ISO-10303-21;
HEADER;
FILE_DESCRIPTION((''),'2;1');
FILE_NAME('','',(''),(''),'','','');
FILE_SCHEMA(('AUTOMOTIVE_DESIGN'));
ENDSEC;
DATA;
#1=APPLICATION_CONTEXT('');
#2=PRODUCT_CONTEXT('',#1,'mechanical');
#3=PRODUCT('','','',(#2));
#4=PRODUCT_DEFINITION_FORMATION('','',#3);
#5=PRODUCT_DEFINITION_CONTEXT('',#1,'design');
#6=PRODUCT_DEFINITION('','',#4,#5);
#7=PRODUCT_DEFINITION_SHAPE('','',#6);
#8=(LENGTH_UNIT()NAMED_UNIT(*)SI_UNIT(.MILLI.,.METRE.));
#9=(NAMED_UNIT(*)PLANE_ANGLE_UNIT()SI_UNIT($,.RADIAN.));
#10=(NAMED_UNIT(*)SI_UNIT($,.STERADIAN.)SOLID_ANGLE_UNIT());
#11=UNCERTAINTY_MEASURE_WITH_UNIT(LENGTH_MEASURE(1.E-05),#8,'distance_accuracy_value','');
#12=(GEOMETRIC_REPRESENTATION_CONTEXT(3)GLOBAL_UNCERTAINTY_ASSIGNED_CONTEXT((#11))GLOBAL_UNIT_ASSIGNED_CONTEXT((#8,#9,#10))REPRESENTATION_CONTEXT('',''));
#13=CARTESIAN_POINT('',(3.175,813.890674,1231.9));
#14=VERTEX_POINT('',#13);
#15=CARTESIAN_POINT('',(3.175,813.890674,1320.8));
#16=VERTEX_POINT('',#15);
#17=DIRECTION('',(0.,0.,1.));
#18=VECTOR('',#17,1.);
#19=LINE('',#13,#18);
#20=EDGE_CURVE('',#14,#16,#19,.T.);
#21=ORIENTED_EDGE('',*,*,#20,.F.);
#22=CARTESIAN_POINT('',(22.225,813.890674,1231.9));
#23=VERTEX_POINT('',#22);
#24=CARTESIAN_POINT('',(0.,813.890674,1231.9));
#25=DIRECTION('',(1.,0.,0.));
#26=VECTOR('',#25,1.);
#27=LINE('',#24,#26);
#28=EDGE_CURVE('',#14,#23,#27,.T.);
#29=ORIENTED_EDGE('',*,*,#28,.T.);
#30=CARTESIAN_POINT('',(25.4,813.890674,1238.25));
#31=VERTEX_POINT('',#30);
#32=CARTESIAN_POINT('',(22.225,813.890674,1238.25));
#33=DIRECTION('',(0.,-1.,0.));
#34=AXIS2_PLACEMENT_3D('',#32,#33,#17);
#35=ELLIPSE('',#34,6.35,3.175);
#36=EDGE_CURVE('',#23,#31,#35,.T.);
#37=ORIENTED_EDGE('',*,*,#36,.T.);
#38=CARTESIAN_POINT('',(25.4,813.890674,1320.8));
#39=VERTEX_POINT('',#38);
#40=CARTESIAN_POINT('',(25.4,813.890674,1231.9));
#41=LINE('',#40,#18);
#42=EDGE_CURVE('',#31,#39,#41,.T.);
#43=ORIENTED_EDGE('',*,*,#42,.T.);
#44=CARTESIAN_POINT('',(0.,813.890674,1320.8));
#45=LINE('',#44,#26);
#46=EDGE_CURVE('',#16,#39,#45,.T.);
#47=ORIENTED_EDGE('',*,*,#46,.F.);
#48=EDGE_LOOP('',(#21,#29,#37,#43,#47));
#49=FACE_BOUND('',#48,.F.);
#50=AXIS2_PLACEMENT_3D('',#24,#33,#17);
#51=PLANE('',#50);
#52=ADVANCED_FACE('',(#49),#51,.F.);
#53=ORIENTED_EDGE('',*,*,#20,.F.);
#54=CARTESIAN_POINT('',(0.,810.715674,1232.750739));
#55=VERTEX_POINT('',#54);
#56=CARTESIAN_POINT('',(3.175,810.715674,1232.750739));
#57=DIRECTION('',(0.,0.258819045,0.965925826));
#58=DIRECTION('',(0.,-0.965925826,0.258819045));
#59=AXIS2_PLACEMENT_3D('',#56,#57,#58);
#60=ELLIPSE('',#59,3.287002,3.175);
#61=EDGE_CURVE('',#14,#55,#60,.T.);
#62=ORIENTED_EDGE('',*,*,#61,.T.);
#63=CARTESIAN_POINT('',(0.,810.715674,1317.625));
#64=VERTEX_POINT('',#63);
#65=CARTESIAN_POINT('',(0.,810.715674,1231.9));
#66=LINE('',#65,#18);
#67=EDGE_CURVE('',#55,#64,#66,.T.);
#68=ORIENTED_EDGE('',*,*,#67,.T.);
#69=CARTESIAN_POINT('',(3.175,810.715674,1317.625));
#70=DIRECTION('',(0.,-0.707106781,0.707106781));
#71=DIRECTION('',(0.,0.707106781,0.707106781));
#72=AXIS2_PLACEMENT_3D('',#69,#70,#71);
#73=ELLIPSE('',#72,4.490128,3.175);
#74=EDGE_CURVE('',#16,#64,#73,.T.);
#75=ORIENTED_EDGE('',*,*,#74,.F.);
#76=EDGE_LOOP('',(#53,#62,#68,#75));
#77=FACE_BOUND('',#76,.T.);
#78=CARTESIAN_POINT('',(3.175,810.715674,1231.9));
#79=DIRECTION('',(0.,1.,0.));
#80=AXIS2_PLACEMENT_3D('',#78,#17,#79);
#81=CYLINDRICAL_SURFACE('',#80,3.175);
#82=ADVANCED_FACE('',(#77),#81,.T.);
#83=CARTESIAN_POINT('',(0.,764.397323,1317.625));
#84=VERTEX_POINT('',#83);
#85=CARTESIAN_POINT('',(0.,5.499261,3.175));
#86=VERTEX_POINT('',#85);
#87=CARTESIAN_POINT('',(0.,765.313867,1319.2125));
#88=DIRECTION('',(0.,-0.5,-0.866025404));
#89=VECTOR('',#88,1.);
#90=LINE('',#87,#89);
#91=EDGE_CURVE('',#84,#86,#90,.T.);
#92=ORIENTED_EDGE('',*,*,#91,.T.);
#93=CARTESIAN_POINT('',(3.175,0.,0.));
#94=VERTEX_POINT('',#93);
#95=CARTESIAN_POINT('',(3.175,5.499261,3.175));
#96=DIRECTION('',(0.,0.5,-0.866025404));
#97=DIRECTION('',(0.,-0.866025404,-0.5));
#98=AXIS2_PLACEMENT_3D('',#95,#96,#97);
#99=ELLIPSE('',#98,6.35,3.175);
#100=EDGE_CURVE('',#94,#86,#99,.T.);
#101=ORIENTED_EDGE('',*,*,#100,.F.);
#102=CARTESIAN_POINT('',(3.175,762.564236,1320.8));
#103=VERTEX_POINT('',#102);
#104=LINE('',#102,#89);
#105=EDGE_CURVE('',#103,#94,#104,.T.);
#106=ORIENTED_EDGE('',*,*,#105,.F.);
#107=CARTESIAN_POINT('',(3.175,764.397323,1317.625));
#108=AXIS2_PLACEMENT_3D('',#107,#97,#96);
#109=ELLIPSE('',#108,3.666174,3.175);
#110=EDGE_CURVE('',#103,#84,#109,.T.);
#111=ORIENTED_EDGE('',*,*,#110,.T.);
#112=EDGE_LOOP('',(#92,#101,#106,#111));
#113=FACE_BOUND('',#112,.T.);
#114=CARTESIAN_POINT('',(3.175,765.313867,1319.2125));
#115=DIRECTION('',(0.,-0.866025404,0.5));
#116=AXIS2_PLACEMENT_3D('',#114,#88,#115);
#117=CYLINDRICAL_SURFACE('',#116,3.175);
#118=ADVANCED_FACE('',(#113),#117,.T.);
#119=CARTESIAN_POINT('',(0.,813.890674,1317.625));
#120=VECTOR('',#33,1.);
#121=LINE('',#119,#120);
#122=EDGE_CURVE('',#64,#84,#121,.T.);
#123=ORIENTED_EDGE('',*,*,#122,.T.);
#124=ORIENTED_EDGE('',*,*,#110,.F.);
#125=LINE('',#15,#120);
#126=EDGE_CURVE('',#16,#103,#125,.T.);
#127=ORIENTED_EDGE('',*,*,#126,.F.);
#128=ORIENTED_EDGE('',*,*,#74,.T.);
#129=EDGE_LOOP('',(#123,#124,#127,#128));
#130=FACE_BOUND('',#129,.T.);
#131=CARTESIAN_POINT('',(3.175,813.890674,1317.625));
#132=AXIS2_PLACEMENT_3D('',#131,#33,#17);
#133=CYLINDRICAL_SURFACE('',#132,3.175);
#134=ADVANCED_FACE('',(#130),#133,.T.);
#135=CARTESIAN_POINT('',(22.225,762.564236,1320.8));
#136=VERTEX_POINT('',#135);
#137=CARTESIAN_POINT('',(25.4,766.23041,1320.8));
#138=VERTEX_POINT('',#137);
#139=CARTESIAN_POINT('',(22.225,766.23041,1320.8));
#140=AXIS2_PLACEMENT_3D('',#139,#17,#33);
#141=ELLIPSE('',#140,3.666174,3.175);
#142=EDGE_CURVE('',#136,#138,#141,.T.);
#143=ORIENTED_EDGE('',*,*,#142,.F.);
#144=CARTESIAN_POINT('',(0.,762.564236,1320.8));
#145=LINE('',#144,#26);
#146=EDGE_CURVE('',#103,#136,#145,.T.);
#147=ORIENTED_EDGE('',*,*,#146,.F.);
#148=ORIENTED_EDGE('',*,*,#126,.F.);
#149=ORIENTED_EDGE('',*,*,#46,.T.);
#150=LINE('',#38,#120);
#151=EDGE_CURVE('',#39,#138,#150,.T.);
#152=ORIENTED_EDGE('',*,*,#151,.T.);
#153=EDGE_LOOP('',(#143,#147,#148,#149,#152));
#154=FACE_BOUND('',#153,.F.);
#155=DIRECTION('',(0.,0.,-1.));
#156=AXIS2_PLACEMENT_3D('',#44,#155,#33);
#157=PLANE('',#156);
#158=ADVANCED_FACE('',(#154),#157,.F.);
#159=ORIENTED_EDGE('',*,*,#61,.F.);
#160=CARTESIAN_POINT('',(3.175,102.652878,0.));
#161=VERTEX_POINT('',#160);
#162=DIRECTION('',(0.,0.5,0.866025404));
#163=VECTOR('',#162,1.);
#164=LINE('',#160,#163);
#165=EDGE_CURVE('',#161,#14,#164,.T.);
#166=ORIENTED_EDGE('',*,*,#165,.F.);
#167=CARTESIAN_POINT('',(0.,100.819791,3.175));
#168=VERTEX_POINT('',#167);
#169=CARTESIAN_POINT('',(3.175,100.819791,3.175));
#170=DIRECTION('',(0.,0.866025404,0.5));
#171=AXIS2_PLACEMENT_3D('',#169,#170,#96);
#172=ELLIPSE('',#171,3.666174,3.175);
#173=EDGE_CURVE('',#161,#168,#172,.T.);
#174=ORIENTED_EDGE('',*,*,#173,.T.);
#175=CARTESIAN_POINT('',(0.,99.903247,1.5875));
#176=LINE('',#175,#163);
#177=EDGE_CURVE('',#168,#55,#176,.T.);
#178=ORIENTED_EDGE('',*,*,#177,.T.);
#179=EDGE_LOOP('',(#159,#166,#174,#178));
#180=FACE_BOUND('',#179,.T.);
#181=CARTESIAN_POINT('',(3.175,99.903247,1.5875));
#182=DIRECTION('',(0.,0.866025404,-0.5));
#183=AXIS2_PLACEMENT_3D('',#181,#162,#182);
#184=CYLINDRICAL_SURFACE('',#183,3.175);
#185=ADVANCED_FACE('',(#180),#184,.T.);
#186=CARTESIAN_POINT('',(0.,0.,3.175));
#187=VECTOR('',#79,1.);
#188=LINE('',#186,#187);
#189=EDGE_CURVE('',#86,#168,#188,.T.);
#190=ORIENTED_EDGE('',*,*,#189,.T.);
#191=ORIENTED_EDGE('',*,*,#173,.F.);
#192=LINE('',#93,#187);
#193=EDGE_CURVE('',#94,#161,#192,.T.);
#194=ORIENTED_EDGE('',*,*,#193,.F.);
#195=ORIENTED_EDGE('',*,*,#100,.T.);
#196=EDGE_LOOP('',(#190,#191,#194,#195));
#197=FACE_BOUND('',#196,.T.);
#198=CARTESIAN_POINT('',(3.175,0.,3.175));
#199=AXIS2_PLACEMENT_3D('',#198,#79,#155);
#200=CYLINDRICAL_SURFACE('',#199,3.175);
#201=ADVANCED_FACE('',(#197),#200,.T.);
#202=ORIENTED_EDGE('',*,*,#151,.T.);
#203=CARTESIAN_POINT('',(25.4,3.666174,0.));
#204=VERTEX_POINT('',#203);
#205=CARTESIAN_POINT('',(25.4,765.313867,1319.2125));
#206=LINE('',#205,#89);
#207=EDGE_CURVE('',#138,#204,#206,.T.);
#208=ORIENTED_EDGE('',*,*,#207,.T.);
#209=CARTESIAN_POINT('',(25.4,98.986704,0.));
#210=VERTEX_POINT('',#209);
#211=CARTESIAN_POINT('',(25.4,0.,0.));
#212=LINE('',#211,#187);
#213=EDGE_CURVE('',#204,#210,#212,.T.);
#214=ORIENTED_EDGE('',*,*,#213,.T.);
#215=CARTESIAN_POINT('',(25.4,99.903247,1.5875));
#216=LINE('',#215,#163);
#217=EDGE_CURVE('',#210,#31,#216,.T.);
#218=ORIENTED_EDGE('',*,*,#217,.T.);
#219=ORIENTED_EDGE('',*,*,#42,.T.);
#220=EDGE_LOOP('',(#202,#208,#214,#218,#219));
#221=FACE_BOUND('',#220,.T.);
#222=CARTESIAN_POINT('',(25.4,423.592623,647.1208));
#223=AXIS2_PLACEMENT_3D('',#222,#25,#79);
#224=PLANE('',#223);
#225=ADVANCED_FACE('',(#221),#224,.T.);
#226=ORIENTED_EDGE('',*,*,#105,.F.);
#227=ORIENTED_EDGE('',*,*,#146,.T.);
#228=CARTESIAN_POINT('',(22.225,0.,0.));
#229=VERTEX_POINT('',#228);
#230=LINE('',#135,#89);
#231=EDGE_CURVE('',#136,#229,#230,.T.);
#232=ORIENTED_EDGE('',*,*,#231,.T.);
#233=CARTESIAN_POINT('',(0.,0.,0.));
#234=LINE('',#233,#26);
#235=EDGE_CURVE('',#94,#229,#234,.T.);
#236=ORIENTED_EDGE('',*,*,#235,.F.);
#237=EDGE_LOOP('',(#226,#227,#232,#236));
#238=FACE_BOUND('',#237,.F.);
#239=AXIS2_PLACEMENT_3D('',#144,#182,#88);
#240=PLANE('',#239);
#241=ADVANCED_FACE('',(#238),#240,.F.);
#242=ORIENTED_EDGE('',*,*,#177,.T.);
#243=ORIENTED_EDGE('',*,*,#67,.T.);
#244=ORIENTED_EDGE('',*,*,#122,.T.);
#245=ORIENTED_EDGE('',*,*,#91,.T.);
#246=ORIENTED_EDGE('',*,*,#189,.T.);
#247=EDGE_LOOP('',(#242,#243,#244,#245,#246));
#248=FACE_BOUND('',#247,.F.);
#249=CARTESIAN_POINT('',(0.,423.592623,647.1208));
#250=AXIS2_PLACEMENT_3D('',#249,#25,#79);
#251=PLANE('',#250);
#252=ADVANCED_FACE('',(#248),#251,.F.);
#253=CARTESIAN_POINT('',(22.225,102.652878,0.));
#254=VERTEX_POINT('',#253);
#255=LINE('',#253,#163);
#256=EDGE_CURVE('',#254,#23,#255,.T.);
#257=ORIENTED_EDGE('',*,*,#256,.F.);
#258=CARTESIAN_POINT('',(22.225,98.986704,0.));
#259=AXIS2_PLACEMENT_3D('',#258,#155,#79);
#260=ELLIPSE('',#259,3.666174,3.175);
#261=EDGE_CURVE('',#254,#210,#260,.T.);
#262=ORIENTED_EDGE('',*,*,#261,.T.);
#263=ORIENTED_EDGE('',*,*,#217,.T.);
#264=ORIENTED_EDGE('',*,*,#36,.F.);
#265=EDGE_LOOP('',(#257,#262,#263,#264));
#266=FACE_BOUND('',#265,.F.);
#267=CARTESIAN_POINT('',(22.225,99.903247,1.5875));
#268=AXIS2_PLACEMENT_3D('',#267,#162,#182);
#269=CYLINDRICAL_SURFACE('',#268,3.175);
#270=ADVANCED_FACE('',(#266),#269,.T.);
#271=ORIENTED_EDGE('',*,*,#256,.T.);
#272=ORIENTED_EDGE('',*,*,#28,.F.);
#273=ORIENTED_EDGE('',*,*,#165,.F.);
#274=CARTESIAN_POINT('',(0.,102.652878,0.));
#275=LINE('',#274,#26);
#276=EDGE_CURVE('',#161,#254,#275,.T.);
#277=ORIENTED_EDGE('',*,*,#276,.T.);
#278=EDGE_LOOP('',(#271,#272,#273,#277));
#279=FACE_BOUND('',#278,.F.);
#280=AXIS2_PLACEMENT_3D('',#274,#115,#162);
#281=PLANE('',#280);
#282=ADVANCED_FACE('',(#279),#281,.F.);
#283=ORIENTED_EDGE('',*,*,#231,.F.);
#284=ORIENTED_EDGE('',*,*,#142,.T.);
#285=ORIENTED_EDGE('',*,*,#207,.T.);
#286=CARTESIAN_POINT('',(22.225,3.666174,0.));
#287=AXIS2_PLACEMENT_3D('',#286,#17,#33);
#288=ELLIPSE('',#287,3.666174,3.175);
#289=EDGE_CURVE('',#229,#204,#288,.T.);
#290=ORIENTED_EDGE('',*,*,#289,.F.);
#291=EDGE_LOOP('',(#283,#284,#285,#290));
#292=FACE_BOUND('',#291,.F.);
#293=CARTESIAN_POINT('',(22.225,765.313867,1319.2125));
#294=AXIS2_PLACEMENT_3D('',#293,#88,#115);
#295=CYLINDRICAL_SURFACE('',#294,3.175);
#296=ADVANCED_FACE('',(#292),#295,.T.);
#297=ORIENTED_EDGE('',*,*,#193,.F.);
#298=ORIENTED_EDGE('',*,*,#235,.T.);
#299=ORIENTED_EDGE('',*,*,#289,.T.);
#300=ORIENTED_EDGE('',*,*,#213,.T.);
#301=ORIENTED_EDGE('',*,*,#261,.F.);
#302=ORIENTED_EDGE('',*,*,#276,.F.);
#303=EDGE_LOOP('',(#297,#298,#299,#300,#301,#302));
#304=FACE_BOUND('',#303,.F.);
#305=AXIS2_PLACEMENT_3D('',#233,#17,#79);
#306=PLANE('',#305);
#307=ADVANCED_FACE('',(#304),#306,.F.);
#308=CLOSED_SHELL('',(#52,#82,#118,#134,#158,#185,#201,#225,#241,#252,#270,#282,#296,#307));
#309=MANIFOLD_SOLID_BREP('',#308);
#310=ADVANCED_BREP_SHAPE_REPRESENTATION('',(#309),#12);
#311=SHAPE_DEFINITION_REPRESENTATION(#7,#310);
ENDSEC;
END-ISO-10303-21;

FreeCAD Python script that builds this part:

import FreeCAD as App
import Part
import Sketcher
Q = App.Units.Quantity


def edges_at(feature, points):
    """Names of the edges that pass closest to the given points."""
    edges = feature.Shape.Edges
    near = lambda p: min(range(len(edges)), key=lambda i: edges[i].distToShape(Part.Vertex(*p))[0])
    return sorted({f"Edge{near(p) + 1}" for p in points})

doc = App.newDocument("Part")
body = doc.addObject("PartDesign::Body", "Body")

# Sketch on YZ plane
sketch1 = doc.addObject("Sketcher::SketchObject", "Sketch")
body.addObject(sketch1)
sketch1.AttachmentSupport = (doc.YZ_Plane, [""])
sketch1.MapMode = "FlatFace"
sketch1.addGeometry([
    Part.LineSegment(App.Vector(762.564236, 1320.8, 0), App.Vector(0, 0, 0)),  # 0
    Part.LineSegment(App.Vector(0, 0, 0), App.Vector(102.652878, 0, 0)),  # 1
    Part.LineSegment(App.Vector(102.652878, 0, 0), App.Vector(813.890674, 1231.9, 0)),  # 2
    Part.LineSegment(App.Vector(813.890674, 1231.9, 0), App.Vector(813.890674, 1320.8, 0)),  # 3
    Part.LineSegment(App.Vector(813.890674, 1320.8, 0), App.Vector(762.564236, 1320.8, 0)),  # 4
], False)
sketch1.addConstraint([
    Sketcher.Constraint("Coincident", 0, 2, 1, 1),
    Sketcher.Constraint("Coincident", 1, 2, 2, 1),
    Sketcher.Constraint("Coincident", 2, 2, 3, 1),
    Sketcher.Constraint("Coincident", 3, 2, 4, 1),
    Sketcher.Constraint("Coincident", 4, 2, 0, 1),
    Sketcher.Constraint("Horizontal", 1),
    Sketcher.Constraint("Vertical", 3),
    Sketcher.Constraint("Horizontal", 4),
    Sketcher.Constraint("Coincident", 0, 2, -1, 1),
    Sketcher.Constraint("Parallel", 0, 2),
    Sketcher.Constraint("DistanceY", 3, 1, 3, 2, Q("3.5 in")),
    Sketcher.Constraint("DistanceY", -1, 1, 3, 2, Q("52 in")),
    Sketcher.Constraint("Angle", 0, Q("-120 deg")),
    Sketcher.Constraint("DistanceX", 1, 1, 1, 2, 102.652878),
])
pad1 = doc.addObject("PartDesign::Pad", "Pad")
body.addObject(pad1)
pad1.Profile = sketch1
pad1.Length = Q("1 in")
doc.recompute()

fillet = doc.addObject("PartDesign::Fillet", "Fillet")
body.addObject(fillet)
fillet.Base = (pad1, edges_at(pad1, [
    (25.4, 381.282, 660.4),
    (0, 381.282, 660.4),
    (0, 813.891, 1276.35),
    (0, 788.227, 1320.8),
    (0, 51.326, 0),
    (0, 458.272, 615.95),
    (25.4, 458.272, 615.95),
]))
fillet.Radius = Q("0.125 in")

doc.recompute()
